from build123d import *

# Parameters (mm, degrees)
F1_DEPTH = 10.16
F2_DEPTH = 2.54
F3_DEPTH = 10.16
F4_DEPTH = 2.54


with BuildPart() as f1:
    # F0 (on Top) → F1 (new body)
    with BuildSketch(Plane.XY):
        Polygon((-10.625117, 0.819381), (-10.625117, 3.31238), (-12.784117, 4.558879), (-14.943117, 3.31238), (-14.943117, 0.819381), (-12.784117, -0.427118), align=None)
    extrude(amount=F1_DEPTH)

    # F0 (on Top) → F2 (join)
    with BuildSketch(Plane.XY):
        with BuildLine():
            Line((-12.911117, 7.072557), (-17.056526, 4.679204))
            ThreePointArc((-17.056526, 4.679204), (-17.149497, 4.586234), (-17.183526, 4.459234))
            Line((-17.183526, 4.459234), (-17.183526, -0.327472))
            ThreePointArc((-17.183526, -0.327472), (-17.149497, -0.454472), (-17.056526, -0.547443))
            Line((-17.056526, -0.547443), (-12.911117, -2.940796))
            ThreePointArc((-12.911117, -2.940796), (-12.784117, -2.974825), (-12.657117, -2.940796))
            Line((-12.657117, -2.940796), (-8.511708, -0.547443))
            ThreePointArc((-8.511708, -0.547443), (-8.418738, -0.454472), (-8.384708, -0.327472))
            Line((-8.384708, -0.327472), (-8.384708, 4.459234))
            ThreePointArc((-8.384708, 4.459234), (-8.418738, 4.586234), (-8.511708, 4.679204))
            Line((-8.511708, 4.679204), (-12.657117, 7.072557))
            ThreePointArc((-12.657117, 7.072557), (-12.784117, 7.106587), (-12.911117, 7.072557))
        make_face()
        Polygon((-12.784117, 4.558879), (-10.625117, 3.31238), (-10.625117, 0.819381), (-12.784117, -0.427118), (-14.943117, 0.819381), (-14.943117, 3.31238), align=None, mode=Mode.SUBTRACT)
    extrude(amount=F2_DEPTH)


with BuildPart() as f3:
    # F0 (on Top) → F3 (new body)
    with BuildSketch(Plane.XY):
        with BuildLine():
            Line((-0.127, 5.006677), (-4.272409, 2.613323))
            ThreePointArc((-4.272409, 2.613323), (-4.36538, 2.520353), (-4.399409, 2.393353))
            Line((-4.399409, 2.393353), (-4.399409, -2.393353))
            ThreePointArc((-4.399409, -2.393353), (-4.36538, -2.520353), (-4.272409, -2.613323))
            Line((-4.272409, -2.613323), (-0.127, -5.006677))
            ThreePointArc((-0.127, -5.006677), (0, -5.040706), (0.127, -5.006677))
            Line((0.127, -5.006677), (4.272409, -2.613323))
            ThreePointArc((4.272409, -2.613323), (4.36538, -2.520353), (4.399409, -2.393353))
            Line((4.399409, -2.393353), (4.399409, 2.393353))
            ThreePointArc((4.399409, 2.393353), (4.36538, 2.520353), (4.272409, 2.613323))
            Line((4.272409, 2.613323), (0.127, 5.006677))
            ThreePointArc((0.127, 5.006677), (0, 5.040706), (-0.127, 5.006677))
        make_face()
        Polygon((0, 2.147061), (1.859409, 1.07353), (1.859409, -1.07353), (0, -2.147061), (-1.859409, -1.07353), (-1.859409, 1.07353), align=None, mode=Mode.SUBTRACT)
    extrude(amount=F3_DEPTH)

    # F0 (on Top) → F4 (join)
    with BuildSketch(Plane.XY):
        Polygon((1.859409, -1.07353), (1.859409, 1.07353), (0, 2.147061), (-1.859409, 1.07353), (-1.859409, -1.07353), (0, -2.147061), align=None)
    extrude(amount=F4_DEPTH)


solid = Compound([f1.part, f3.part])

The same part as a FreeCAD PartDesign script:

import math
import FreeCAD as App
import Part
import Sketcher
Q = App.Units.Quantity


def add_polygon(sketch, points):
    """Adds a closed chain of lines whose ends are joined by coincident constraints."""
    first, n = sketch.GeometryCount, len(points)
    for a, b in zip(points, points[1:] + points[:1]):
        sketch.addGeometry(Part.LineSegment(App.Vector(*a, 0), App.Vector(*b, 0)), False)
    for i in range(n):
        sketch.addConstraint(Sketcher.Constraint("Coincident", first + i, 2, first + (i + 1) % n, 1))

doc = App.newDocument("Part")
params = doc.addObject("Spreadsheet::Sheet", "Params")
for row, (alias, value) in enumerate([
    ("pad1_length", "0.4 in"),
    ("sketch2_radius", "0.0099998 in"),
    ("sketch2_radius2", "0.0099999 in"),
    ("sketch2_radius3", "0.0100001 in"),
    ("sketch2_radius4", "0.01 in"),
    ("pad2_length", "0.1 in"),
    ("sketch3_radius", "0.0099998 in"),
    ("sketch3_radius2", "0.0100001 in"),
    ("pad3_length", "0.4 in"),
    ("pad4_length", "0.1 in"),
], start=1):
    params.set(f"A{row}", alias)
    params.set(f"B{row}", "=" + value)
    params.setAlias(f"B{row}", alias)

body = doc.addObject("PartDesign::Body", "Body")

sketch1 = body.newObject("Sketcher::SketchObject", "Sketch")
sketch1.AttachmentSupport = (doc.getObject("XY_Plane"), [""])
sketch1.MapMode = "FlatFace"
add_polygon(sketch1, [(-10.6, 0.8), (-10.6, 3.3), (-12.8, 4.6), (-14.9, 3.3), (-14.9, 0.8), (-12.8, -0.4)])
sketch1.addConstraint(Sketcher.Constraint("Vertical", 0))
sketch1.addConstraint(Sketcher.Constraint("Vertical", 3))
sketch1.addConstraint(Sketcher.Constraint("Parallel", 1, 4))
sketch1.addConstraint(Sketcher.Constraint("Parallel", 2, 5))
sketch1.addConstraint(Sketcher.Constraint("Horizontal", 0, 2, 2, 2))
sketch1.addConstraint(Sketcher.Constraint("Horizontal", 3, 2, 5, 2))
sketch1.addConstraint(Sketcher.Constraint("Vertical", 1, 2, 4, 2))
sketch1.addConstraint(Sketcher.Constraint("Angle", 1, Q("150.000005 deg")))
sketch1.addConstraint(Sketcher.Constraint("DistanceX", 2, 2, 0, 2, Q("0.17 in")))
sketch1.addConstraint(Sketcher.Constraint("DistanceY", 0, 1, 0, 2, 2.492999))
sketch1.addConstraint(Sketcher.Constraint("DistanceY", -1, 1, 0, 2, 3.31238))
sketch1.addConstraint(Sketcher.Constraint("DistanceX", 0, 2, -1, 1, 10.625117))
pad1 = body.newObject("PartDesign::Pad", "Pad")
pad1.Profile = sketch1
pad1.setExpression("Length", "Params.pad1_length")

sketch2 = body.newObject("Sketcher::SketchObject", "Sketch001")
sketch2.AttachmentSupport = (doc.getObject("XY_Plane"), [""])
sketch2.MapMode = "FlatFace"
sketch2.addGeometry(Part.LineSegment(App.Vector(-12.91, 7.07, 0), App.Vector(-17.06, 4.68, 0)), False)
sketch2.addGeometry(Part.ArcOfCircle(Part.Circle(App.Vector(-16.93, 4.46, 0), App.Vector(0, 0, 1), 0.25), math.radians(120), math.radians(180)), False)
sketch2.addGeometry(Part.LineSegment(App.Vector(-17.18, 4.46, 0), App.Vector(-17.18, -0.33, 0)), False)
sketch2.addGeometry(Part.ArcOfCircle(Part.Circle(App.Vector(-16.93, -0.33, 0), App.Vector(0, 0, 1), 0.25), math.radians(180), math.radians(240)), False)
sketch2.addGeometry(Part.LineSegment(App.Vector(-17.06, -0.55, 0), App.Vector(-12.91, -2.94, 0)), False)
sketch2.addGeometry(Part.ArcOfCircle(Part.Circle(App.Vector(-12.78, -2.72, 0), App.Vector(0, 0, 1), 0.25), math.radians(-120), math.radians(-60)), False)
sketch2.addGeometry(Part.LineSegment(App.Vector(-12.66, -2.94, 0), App.Vector(-8.51, -0.55, 0)), False)
sketch2.addGeometry(Part.ArcOfCircle(Part.Circle(App.Vector(-8.64, -0.33, 0), App.Vector(0, 0, 1), 0.25), math.radians(-60), math.radians(0)), False)
sketch2.addGeometry(Part.LineSegment(App.Vector(-8.38, -0.33, 0), App.Vector(-8.38, 4.46, 0)), False)
sketch2.addGeometry(Part.ArcOfCircle(Part.Circle(App.Vector(-8.64, 4.46, 0), App.Vector(0, 0, 1), 0.25), math.radians(0), math.radians(60)), False)
sketch2.addGeometry(Part.LineSegment(App.Vector(-8.51, 4.68, 0), App.Vector(-12.66, 7.07, 0)), False)
sketch2.addGeometry(Part.ArcOfCircle(Part.Circle(App.Vector(-12.78, 6.85, 0), App.Vector(0, 0, 1), 0.25), math.radians(60), math.radians(120)), False)
add_polygon(sketch2, [(-14.94, 3.31), (-12.78, 4.56), (-10.63, 3.31), (-10.63, 0.82), (-12.78, -0.43), (-14.94, 0.82)])
sketch2.addConstraint(Sketcher.Constraint("Coincident", 0, 2, 1, 1))
sketch2.addConstraint(Sketcher.Constraint("Coincident", 1, 2, 2, 1))
sketch2.addConstraint(Sketcher.Constraint("Coincident", 2, 2, 3, 1))
sketch2.addConstraint(Sketcher.Constraint("Coincident", 3, 2, 4, 1))
sketch2.addConstraint(Sketcher.Constraint("Coincident", 4, 2, 5, 1))
sketch2.addConstraint(Sketcher.Constraint("Coincident", 5, 2, 6, 1))
sketch2.addConstraint(Sketcher.Constraint("Coincident", 6, 2, 7, 1))
sketch2.addConstraint(Sketcher.Constraint("Coincident", 7, 2, 8, 1))
sketch2.addConstraint(Sketcher.Constraint("Coincident", 8, 2, 9, 1))
sketch2.addConstraint(Sketcher.Constraint("Coincident", 9, 2, 10, 1))
sketch2.addConstraint(Sketcher.Constraint("Coincident", 10, 2, 11, 1))
sketch2.addConstraint(Sketcher.Constraint("Coincident", 11, 2, 0, 1))
sketch2.addConstraint(Sketcher.Constraint("Vertical", 2))
sketch2.addConstraint(Sketcher.Constraint("Vertical", 8))
sketch2.addConstraint(Sketcher.Constraint("Vertical", 14))
sketch2.addConstraint(Sketcher.Constraint("Vertical", 17))
sketch2.addConstraint(Sketcher.Constraint("Equal", 5, 7))
sketch2.addConstraint(Sketcher.Constraint("Equal", 3, 11))
sketch2.addConstraint(Sketcher.Constraint("Parallel", 0, 6))
sketch2.addConstraint(Sketcher.Constraint("Parallel", 4, 10))
sketch2.addConstraint(Sketcher.Constraint("Parallel", 6, 12))
sketch2.addConstraint(Sketcher.Constraint("Parallel", 10, 13))
sketch2.addConstraint(Sketcher.Constraint("Parallel", 12, 15))
sketch2.addConstraint(Sketcher.Constraint("Parallel", 13, 16))
sketch2.addConstraint(Sketcher.Constraint("Horizontal", 9, 3, 1, 2))
sketch2.addConstraint(Sketcher.Constraint("Horizontal", 7, 3, 2, 2))
sketch2.addConstraint(Sketcher.Constraint("Horizontal", 4, 2, 5, 2))
sketch2.addConstraint(Sketcher.Constraint("Horizontal", 3, 2, 6, 2))
sketch2.addConstraint(Sketcher.Constraint("Horizontal", 2, 2, 7, 2))
sketch2.addConstraint(Sketcher.Constraint("Horizontal", 1, 2, 8, 2))
sketch2.addConstraint(Sketcher.Constraint("Horizontal", 0, 2, 9, 2))
sketch2.addConstraint(Sketcher.Constraint("Horizontal", 10, 2, 11, 2))
sketch2.addConstraint(Sketcher.Constraint("Horizontal", 14, 2, 16, 2))
sketch2.addConstraint(Sketcher.Constraint("Horizontal", 13, 2, 17, 2))
sketch2.addConstraint(Sketcher.Constraint("Vertical", 5, 3, 11, 3))
sketch2.addConstraint(Sketcher.Constraint("Vertical", 0, 2, 3, 2))
sketch2.addConstraint(Sketcher.Constraint("Vertical", 6, 2, 9, 2))
sketch2.addConstraint(Sketcher.Constraint("Vertical", 5, 2, 10, 2))
sketch2.addConstraint(Sketcher.Constraint("Vertical", 11, 3, 12, 2))
sketch2.addConstraint(Sketcher.Constraint("Radius", 1, Q("0.0099998 in")))
sketch2.addConstraint(Sketcher.Constraint("Radius", 3, Q("0.0099999 in")))
sketch2.addConstraint(Sketcher.Constraint("Radius", 5, Q("0.0100001 in")))
sketch2.addConstraint(Sketcher.Constraint("Radius", 9, Q("0.01 in")))
sketch2.addConstraint(Sketcher.Constraint("Angle", 0, Q("-150 deg")))
sketch2.addConstraint(Sketcher.Constraint("DistanceX", 4, 2, 5, 2, Q("0.01 in")))
sketch2.addConstraint(Sketcher.Constraint("DistanceX", 0, 2, 1, 3, Q("0.0049998 in")))
sketch2.addConstraint(Sketcher.Constraint("DistanceX", 7, 3, 6, 2, Q("0.0050002 in")))
sketch2.addConstraint(Sketcher.Constraint("DistanceX", 12, 2, 13, 2, Q("0.085 in")))
sketch2.addConstraint(Sketcher.Constraint("DistanceY", 14, 2, 14, 1, 2.492999))
sketch2.addConstraint(Sketcher.Constraint("DistanceY", 2, 2, 2, 1, 4.786706))
sketch2.addConstraint(Sketcher.Constraint("DistanceX", 1, 3, -1, 1, 16.929531))
sketch2.addConstraint(Sketcher.Constraint("DistanceY", 5, 3, -1, 1, 2.720821))
sketch2.addConstraint(Sketcher.Constraint("DistanceY", 7, 3, -1, 1, 0.32747))
sketch2.addConstraint(Sketcher.Constraint("DistanceY", -1, 1, 12, 2, 4.558879))
sketch2.setExpression("Constraints[45]", "Params.sketch2_radius")
sketch2.setExpression("Constraints[46]", "Params.sketch2_radius2")
sketch2.setExpression("Constraints[47]", "Params.sketch2_radius3")
sketch2.setExpression("Constraints[48]", "Params.sketch2_radius4")
pad2 = body.newObject("PartDesign::Pad", "Pad001")
pad2.Profile = sketch2
pad2.setExpression("Length", "Params.pad2_length")
body2 = doc.addObject("PartDesign::Body", "Body001")

sketch3 = body2.newObject("Sketcher::SketchObject", "Sketch002")
sketch3.AttachmentSupport = (doc.getObject("XY_Plane001"), [""])
sketch3.MapMode = "FlatFace"
sketch3.addGeometry(Part.LineSegment(App.Vector(-0.13, 5.01, 0), App.Vector(-4.27, 2.61, 0)), False)
sketch3.addGeometry(Part.ArcOfCircle(Part.Circle(App.Vector(-4.15, 2.39, 0), App.Vector(0, 0, 1), 0.25), math.radians(120), math.radians(180)), False)
sketch3.addGeometry(Part.LineSegment(App.Vector(-4.4, 2.39, 0), App.Vector(-4.4, -2.39, 0)), False)
sketch3.addGeometry(Part.ArcOfCircle(Part.Circle(App.Vector(-4.15, -2.39, 0), App.Vector(0, 0, 1), 0.25), math.radians(180), math.radians(240)), False)
sketch3.addGeometry(Part.LineSegment(App.Vector(-4.27, -2.61, 0), App.Vector(-0.13, -5.01, 0)), False)
sketch3.addGeometry(Part.ArcOfCircle(Part.Circle(App.Vector(0, -4.79, 0), App.Vector(0, 0, 1), 0.25), math.radians(-120), math.radians(-60)), False)
sketch3.addGeometry(Part.LineSegment(App.Vector(0.13, -5.01, 0), App.Vector(4.27, -2.61, 0)), False)
sketch3.addGeometry(Part.ArcOfCircle(Part.Circle(App.Vector(4.15, -2.39, 0), App.Vector(0, 0, 1), 0.25), math.radians(-60), math.radians(0)), False)
sketch3.addGeometry(Part.LineSegment(App.Vector(4.4, -2.39, 0), App.Vector(4.4, 2.39, 0)), False)
sketch3.addGeometry(Part.ArcOfCircle(Part.Circle(App.Vector(4.15, 2.39, 0), App.Vector(0, 0, 1), 0.25), math.radians(0), math.radians(60)), False)
sketch3.addGeometry(Part.LineSegment(App.Vector(4.27, 2.61, 0), App.Vector(0.13, 5.01, 0)), False)
sketch3.addGeometry(Part.ArcOfCircle(Part.Circle(App.Vector(0, 4.79, 0), App.Vector(0, 0, 1), 0.25), math.radians(60), math.radians(120)), False)
add_polygon(sketch3, [(-1.86, 1.07), (0, 2.15), (1.86, 1.07), (1.86, -1.07), (0, -2.15), (-1.86, -1.07)])
sketch3.addConstraint(Sketcher.Constraint("Coincident", 0, 2, 1, 1))
sketch3.addConstraint(Sketcher.Constraint("Coincident", 1, 2, 2, 1))
sketch3.addConstraint(Sketcher.Constraint("Coincident", 2, 2, 3, 1))
sketch3.addConstraint(Sketcher.Constraint("Coincident", 3, 2, 4, 1))
sketch3.addConstraint(Sketcher.Constraint("Coincident", 4, 2, 5, 1))
sketch3.addConstraint(Sketcher.Constraint("Coincident", 5, 2, 6, 1))
sketch3.addConstraint(Sketcher.Constraint("Coincident", 6, 2, 7, 1))
sketch3.addConstraint(Sketcher.Constraint("Coincident", 7, 2, 8, 1))
sketch3.addConstraint(Sketcher.Constraint("Coincident", 8, 2, 9, 1))
sketch3.addConstraint(Sketcher.Constraint("Coincident", 9, 2, 10, 1))
sketch3.addConstraint(Sketcher.Constraint("Coincident", 10, 2, 11, 1))
sketch3.addConstraint(Sketcher.Constraint("Coincident", 11, 2, 0, 1))
sketch3.addConstraint(Sketcher.Constraint("Vertical", 2))
sketch3.addConstraint(Sketcher.Constraint("Vertical", 8))
sketch3.addConstraint(Sketcher.Constraint("Vertical", 14))
sketch3.addConstraint(Sketcher.Constraint("Vertical", 17))
sketch3.addConstraint(Sketcher.Constraint("Equal", 1, 3))
sketch3.addConstraint(Sketcher.Constraint("Equal", 3, 7))
sketch3.addConstraint(Sketcher.Constraint("Equal", 7, 9))
sketch3.addConstraint(Sketcher.Constraint("Equal", 5, 11))
sketch3.addConstraint(Sketcher.Constraint("Symmetric", 1, 3, 7, 3, -1, 1))
sketch3.addConstraint(Sketcher.Constraint("Symmetric", 5, 3, 11, 3, -1, 1))
sketch3.addConstraint(Sketcher.Constraint("Symmetric", 3, 2, 9, 2, -1, 1))
sketch3.addConstraint(Sketcher.Constraint("Symmetric", 12, 2, 15, 2, -1, 1))
sketch3.addConstraint(Sketcher.Constraint("Symmetric", 13, 2, 16, 2, -1, 1))
sketch3.addConstraint(Sketcher.Constraint("Symmetric", 4, 2, 5, 2, -2))
sketch3.addConstraint(Sketcher.Constraint("Symmetric", 3, 2, 6, 2, -2))
sketch3.addConstraint(Sketcher.Constraint("PointOnObject", 12, 2, -2))
sketch3.addConstraint(Sketcher.Constraint("Parallel", 6, 12))
sketch3.addConstraint(Sketcher.Constraint("Parallel", 10, 13))
sketch3.addConstraint(Sketcher.Constraint("Parallel", 12, 15))
sketch3.addConstraint(Sketcher.Constraint("Horizontal", 2, 2, 7, 2))
sketch3.addConstraint(Sketcher.Constraint("Horizontal", 1, 2, 8, 2))
sketch3.addConstraint(Sketcher.Constraint("Horizontal", 0, 2, 9, 2))
sketch3.addConstraint(Sketcher.Constraint("Horizontal", 10, 2, 11, 2))
sketch3.addConstraint(Sketcher.Constraint("Vertical", 5, 2, 10, 2))
sketch3.addConstraint(Sketcher.Constraint("Radius", 1, Q("0.0099998 in")))
sketch3.addConstraint(Sketcher.Constraint("Radius", 5, Q("0.0100001 in")))
sketch3.addConstraint(Sketcher.Constraint("Angle", 0, Q("-149.99999 deg")))
sketch3.addConstraint(Sketcher.Constraint("DistanceX", 13, 2, 8, 2, Q("0.1 in")))
sketch3.addConstraint(Sketcher.Constraint("DistanceX", 4, 2, 5, 2, Q("0.01 in")))
sketch3.addConstraint(Sketcher.Constraint("DistanceX", 0, 2, 1, 3, Q("0.0049998 in")))
sketch3.addConstraint(Sketcher.Constraint("DistanceY", 14, 2, 14, 1, 2.14706))
sketch3.addConstraint(Sketcher.Constraint("Distance", 12, 2.147061))
sketch3.addConstraint(Sketcher.Constraint("DistanceY", 2, 2, 2, 1, 4.786706))
sketch3.addConstraint(Sketcher.Constraint("DistanceY", 3, 3, 1, 3, 4.78671))
sketch3.addConstraint(Sketcher.Constraint("DistanceY", 1, 2, 0, 2, 0.21997))
sketch3.setExpression("Constraints[42]", "Params.sketch3_radius")
sketch3.setExpression("Constraints[43]", "Params.sketch3_radius2")
pad3 = body2.newObject("PartDesign::Pad", "Pad002")
pad3.Profile = sketch3
pad3.setExpression("Length", "Params.pad3_length")

sketch4 = body2.newObject("Sketcher::SketchObject", "Sketch003")
sketch4.AttachmentSupport = (doc.getObject("XY_Plane001"), [""])
sketch4.MapMode = "FlatFace"
add_polygon(sketch4, [(1.9, -1.1), (1.9, 1.1), (0, 2.1), (-1.9, 1.1), (-1.9, -1.1), (0, -2.1)])
sketch4.addConstraint(Sketcher.Constraint("Vertical", 0))
sketch4.addConstraint(Sketcher.Constraint("Vertical", 3))
sketch4.addConstraint(Sketcher.Constraint("Symmetric", 0, 2, 3, 2, -1, 1))
sketch4.addConstraint(Sketcher.Constraint("Symmetric", 1, 2, 4, 2, -1, 1))
sketch4.addConstraint(Sketcher.Constraint("PointOnObject", 1, 2, -2))
sketch4.addConstraint(Sketcher.Constraint("Parallel", 2, 5))
sketch4.addConstraint(Sketcher.Constraint("Horizontal", 0, 2, 2, 2))
sketch4.addConstraint(Sketcher.Constraint("Angle", 1, Q("149.999984 deg")))
sketch4.addConstraint(Sketcher.Constraint("DistanceY", 0, 1, 0, 2, 2.14706))
sketch4.addConstraint(Sketcher.Constraint("Distance", 1, 2.147061))
pad4 = body2.newObject("PartDesign::Pad", "Pad003")
pad4.Profile = sketch4
pad4.setExpression("Length", "Params.pad4_length")

doc.recompute()
